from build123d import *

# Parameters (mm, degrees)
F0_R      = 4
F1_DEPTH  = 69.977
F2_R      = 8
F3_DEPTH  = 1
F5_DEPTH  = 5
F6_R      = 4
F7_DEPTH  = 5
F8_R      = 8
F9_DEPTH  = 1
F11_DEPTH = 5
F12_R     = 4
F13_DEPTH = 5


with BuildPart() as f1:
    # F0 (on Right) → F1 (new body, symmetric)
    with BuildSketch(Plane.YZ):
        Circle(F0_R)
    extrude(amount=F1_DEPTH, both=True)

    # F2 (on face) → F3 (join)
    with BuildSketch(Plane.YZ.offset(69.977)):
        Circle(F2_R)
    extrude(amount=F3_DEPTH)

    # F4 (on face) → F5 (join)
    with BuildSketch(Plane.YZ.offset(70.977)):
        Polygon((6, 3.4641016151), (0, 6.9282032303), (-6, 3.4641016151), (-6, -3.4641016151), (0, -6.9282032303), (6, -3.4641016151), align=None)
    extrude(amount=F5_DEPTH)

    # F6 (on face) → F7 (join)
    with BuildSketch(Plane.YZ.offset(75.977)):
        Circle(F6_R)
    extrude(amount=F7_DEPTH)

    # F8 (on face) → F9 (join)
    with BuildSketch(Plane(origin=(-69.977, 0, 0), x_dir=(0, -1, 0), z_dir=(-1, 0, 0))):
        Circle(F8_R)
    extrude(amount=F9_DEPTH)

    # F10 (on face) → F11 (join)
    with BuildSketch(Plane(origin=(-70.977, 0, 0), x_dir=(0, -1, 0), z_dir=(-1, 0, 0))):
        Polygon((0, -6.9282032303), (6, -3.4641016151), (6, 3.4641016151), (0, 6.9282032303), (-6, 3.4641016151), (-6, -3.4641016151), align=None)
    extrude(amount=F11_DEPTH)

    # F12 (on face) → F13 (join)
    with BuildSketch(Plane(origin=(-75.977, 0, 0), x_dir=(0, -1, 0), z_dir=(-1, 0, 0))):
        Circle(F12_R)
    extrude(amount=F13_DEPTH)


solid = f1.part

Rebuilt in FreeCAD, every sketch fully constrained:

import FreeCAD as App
import Part
import Sketcher

V = App.Vector
Q = App.Units.Quantity

doc = App.newDocument("Part")
body = doc.addObject("PartDesign::Body", "Body")

sketch1 = body.newObject("Sketcher::SketchObject", "Sketch")
sketch1.AttachmentSupport = (doc.getObject("YZ_Plane"), [""])
sketch1.MapMode = "FlatFace"
sketch1.addGeometry(Part.Circle(V(0, 0, 0), V(0, 0, 1), 4), False)
sketch1.addConstraint(Sketcher.Constraint("Coincident", 0, 3, -1, 1))
sketch1.addConstraint(Sketcher.Constraint("Diameter", 0, 8.0))
pad1 = body.newObject("PartDesign::Pad", "Pad")
pad1.Profile = sketch1
pad1.Length = 139.954
pad1.Midplane = True

sketch2 = body.newObject("Sketcher::SketchObject", "Sketch001")
sketch2.AttachmentSupport = (doc.getObject("YZ_Plane"), [""])
sketch2.MapMode = "FlatFace"
sketch2.AttachmentOffset = App.Placement(V(0, 0, 69.977), App.Rotation())
sketch2.addGeometry(Part.Circle(V(0, 0, 0), V(0, 0, 1), 8), False)
sketch2.addConstraint(Sketcher.Constraint("Coincident", 0, 3, -1, 1))
sketch2.addConstraint(Sketcher.Constraint("Diameter", 0, 16.0))
pad2 = body.newObject("PartDesign::Pad", "Pad001")
pad2.Profile = sketch2
pad2.Length = 1

sketch3 = body.newObject("Sketcher::SketchObject", "Sketch002")
sketch3.AttachmentSupport = (doc.getObject("YZ_Plane"), [""])
sketch3.MapMode = "FlatFace"
sketch3.AttachmentOffset = App.Placement(V(0, 0, 70.977), App.Rotation())
sketch3.addGeometry(Part.LineSegment(V(6, 3.464102, 0), V(0, 6.928203, 0)), False)
sketch3.addGeometry(Part.LineSegment(V(0, 6.928203, 0), V(-6, 3.464102, 0)), False)
sketch3.addGeometry(Part.LineSegment(V(-6, 3.464102, 0), V(-6, -3.464102, 0)), False)
sketch3.addGeometry(Part.LineSegment(V(-6, -3.464102, 0), V(0, -6.928203, 0)), False)
sketch3.addGeometry(Part.LineSegment(V(0, -6.928203, 0), V(6, -3.464102, 0)), False)
sketch3.addGeometry(Part.LineSegment(V(6, -3.464102, 0), V(6, 3.464102, 0)), False)
sketch3.addConstraint(Sketcher.Constraint("Coincident", 0, 2, 1, 1))
sketch3.addConstraint(Sketcher.Constraint("Coincident", 1, 2, 2, 1))
sketch3.addConstraint(Sketcher.Constraint("Coincident", 2, 2, 3, 1))
sketch3.addConstraint(Sketcher.Constraint("Coincident", 3, 2, 4, 1))
sketch3.addConstraint(Sketcher.Constraint("Coincident", 4, 2, 5, 1))
sketch3.addConstraint(Sketcher.Constraint("Coincident", 5, 2, 0, 1))
sketch3.addConstraint(Sketcher.Constraint("Vertical", 2))
sketch3.addConstraint(Sketcher.Constraint("Vertical", 5))
sketch3.addConstraint(Sketcher.Constraint("Symmetric", 0, 2, 3, 2, -1, 1))
sketch3.addConstraint(Sketcher.Constraint("Symmetric", 1, 2, 4, 2, -1, 1))
sketch3.addConstraint(Sketcher.Constraint("PointOnObject", 0, 2, -2))
sketch3.addConstraint(Sketcher.Constraint("Parallel", 0, 3))
sketch3.addConstraint(Sketcher.Constraint("Horizontal", 2, 2, 4, 2))
sketch3.addConstraint(Sketcher.Constraint("Angle", 0, Q("150 deg")))
sketch3.addConstraint(Sketcher.Constraint("DistanceX", 1, 2, -1, 1, 6.0))
sketch3.addConstraint(Sketcher.Constraint("DistanceY", -1, 1, 1, 2, 3.464102))
pad3 = body.newObject("PartDesign::Pad", "Pad002")
pad3.Profile = sketch3
pad3.Length = 5

sketch4 = body.newObject("Sketcher::SketchObject", "Sketch003")
sketch4.AttachmentSupport = (doc.getObject("YZ_Plane"), [""])
sketch4.MapMode = "FlatFace"
sketch4.AttachmentOffset = App.Placement(V(0, 0, 75.977), App.Rotation())
sketch4.addGeometry(Part.Circle(V(0, 0, 0), V(0, 0, 1), 4), False)
sketch4.addConstraint(Sketcher.Constraint("Coincident", 0, 3, -1, 1))
sketch4.addConstraint(Sketcher.Constraint("Diameter", 0, 8.0))
pad4 = body.newObject("PartDesign::Pad", "Pad003")
pad4.Profile = sketch4
pad4.Length = 5

sketch5 = body.newObject("Sketcher::SketchObject", "Sketch004")
sketch5.AttachmentSupport = (doc.getObject("YZ_Plane"), [""])
sketch5.MapMode = "FlatFace"
sketch5.AttachmentOffset = App.Placement(V(0, 0, -69.977), App.Rotation())
sketch5.addGeometry(Part.Circle(V(0, 0, 0), V(0, 0, 1), 8), False)
sketch5.addConstraint(Sketcher.Constraint("Coincident", 0, 3, -1, 1))
sketch5.addConstraint(Sketcher.Constraint("Diameter", 0, 16.0))
pad5 = body.newObject("PartDesign::Pad", "Pad004")
pad5.Profile = sketch5
pad5.Length = 1
pad5.Reversed = True

sketch6 = body.newObject("Sketcher::SketchObject", "Sketch005")
sketch6.AttachmentSupport = (doc.getObject("YZ_Plane"), [""])
sketch6.MapMode = "FlatFace"
sketch6.AttachmentOffset = App.Placement(V(0, 0, -70.977), App.Rotation())
sketch6.addGeometry(Part.LineSegment(V(0, -6.928203, 0), V(-6, -3.464102, 0)), False)
sketch6.addGeometry(Part.LineSegment(V(-6, -3.464102, 0), V(-6, 3.464102, 0)), False)
sketch6.addGeometry(Part.LineSegment(V(-6, 3.464102, 0), V(0, 6.928203, 0)), False)
sketch6.addGeometry(Part.LineSegment(V(0, 6.928203, 0), V(6, 3.464102, 0)), False)
sketch6.addGeometry(Part.LineSegment(V(6, 3.464102, 0), V(6, -3.464102, 0)), False)
sketch6.addGeometry(Part.LineSegment(V(6, -3.464102, 0), V(0, -6.928203, 0)), False)
sketch6.addConstraint(Sketcher.Constraint("Coincident", 0, 2, 1, 1))
sketch6.addConstraint(Sketcher.Constraint("Coincident", 1, 2, 2, 1))
sketch6.addConstraint(Sketcher.Constraint("Coincident", 2, 2, 3, 1))
sketch6.addConstraint(Sketcher.Constraint("Coincident", 3, 2, 4, 1))
sketch6.addConstraint(Sketcher.Constraint("Coincident", 4, 2, 5, 1))
sketch6.addConstraint(Sketcher.Constraint("Coincident", 5, 2, 0, 1))
sketch6.addConstraint(Sketcher.Constraint("Vertical", 1))
sketch6.addConstraint(Sketcher.Constraint("Vertical", 4))
sketch6.addConstraint(Sketcher.Constraint("Symmetric", 0, 2, 3, 2, -1, 1))
sketch6.addConstraint(Sketcher.Constraint("Symmetric", 2, 2, 5, 2, -1, 1))
sketch6.addConstraint(Sketcher.Constraint("PointOnObject", 2, 2, -2))
sketch6.addConstraint(Sketcher.Constraint("Parallel", 2, 5))
sketch6.addConstraint(Sketcher.Constraint("Horizontal", 1, 2, 3, 2))
sketch6.addConstraint(Sketcher.Constraint("Angle", 0, Q("150 deg")))
sketch6.addConstraint(Sketcher.Constraint("DistanceX", 0, 2, -1, 1, 6.0))
sketch6.addConstraint(Sketcher.Constraint("DistanceY", 0, 2, -1, 1, 3.464102))
pad6 = body.newObject("PartDesign::Pad", "Pad005")
pad6.Profile = sketch6
pad6.Length = 5
pad6.Reversed = True

sketch7 = body.newObject("Sketcher::SketchObject", "Sketch006")
sketch7.AttachmentSupport = (doc.getObject("YZ_Plane"), [""])
sketch7.MapMode = "FlatFace"
sketch7.AttachmentOffset = App.Placement(V(0, 0, -75.977), App.Rotation())
sketch7.addGeometry(Part.Circle(V(0, 0, 0), V(0, 0, 1), 4), False)
sketch7.addConstraint(Sketcher.Constraint("Coincident", 0, 3, -1, 1))
sketch7.addConstraint(Sketcher.Constraint("Diameter", 0, 8.0))
pad7 = body.newObject("PartDesign::Pad", "Pad006")
pad7.Profile = sketch7
pad7.Length = 5
pad7.Reversed = True

doc.recompute()
